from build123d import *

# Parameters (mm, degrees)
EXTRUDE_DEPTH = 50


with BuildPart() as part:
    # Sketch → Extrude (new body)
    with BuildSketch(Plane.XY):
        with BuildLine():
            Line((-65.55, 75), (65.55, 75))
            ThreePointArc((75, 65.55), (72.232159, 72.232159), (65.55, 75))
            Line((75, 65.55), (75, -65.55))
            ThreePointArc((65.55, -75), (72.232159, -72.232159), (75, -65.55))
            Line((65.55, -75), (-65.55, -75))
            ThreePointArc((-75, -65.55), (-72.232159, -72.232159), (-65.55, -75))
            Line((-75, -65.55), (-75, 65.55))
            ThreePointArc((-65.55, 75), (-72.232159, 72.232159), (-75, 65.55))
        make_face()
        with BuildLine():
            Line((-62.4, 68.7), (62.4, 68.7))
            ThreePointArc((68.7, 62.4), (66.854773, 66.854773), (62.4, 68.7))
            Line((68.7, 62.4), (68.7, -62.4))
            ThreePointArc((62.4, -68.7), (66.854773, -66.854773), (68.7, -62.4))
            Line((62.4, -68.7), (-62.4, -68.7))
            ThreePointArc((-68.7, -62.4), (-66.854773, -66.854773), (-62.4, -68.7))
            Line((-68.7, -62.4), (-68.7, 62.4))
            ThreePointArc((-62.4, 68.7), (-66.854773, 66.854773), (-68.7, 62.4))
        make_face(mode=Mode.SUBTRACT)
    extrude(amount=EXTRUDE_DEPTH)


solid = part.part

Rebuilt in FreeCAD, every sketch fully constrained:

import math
import FreeCAD as App
import Part
import Sketcher

doc = App.newDocument("Part")
params = doc.addObject("Spreadsheet::Sheet", "Params")
for row, (alias, value) in enumerate([
    ("sketch1_radius", "6.299999 mm"),
    ("sketch1_radius2", "9.45 mm"),
    ("sketch1_width", "131.1 mm"),
    ("sketch1_width2", "124.8 mm"),
    ("pad1_length", "50 mm"),
], start=1):
    params.set(f"A{row}", alias)
    params.set(f"B{row}", "=" + value)
    params.setAlias(f"B{row}", alias)

body = doc.addObject("PartDesign::Body", "Body")

# Sketch on XY plane
sketch1 = doc.addObject("Sketcher::SketchObject", "Sketch")
body.addObject(sketch1)
sketch1.AttachmentSupport = (doc.XY_Plane, [""])
sketch1.MapMode = "FlatFace"
sketch1.addGeometry([
    Part.LineSegment(App.Vector(66, 75, 0), App.Vector(-66, 75, 0)),  # 0
    Part.ArcOfCircle(Part.Circle(App.Vector(-66, 66, 0), App.Vector(0, 0, 1), 9), math.radians(90), math.radians(180)),  # 1
    Part.LineSegment(App.Vector(-75, 66, 0), App.Vector(-75, -66, 0)),  # 2
    Part.ArcOfCircle(Part.Circle(App.Vector(-66, -66, 0), App.Vector(0, 0, 1), 9), math.radians(-180), math.radians(-90)),  # 3
    Part.LineSegment(App.Vector(-66, -75, 0), App.Vector(66, -75, 0)),  # 4
    Part.ArcOfCircle(Part.Circle(App.Vector(66, -66, 0), App.Vector(0, 0, 1), 9), math.radians(-90), math.radians(0)),  # 5
    Part.LineSegment(App.Vector(75, -66, 0), App.Vector(75, 66, 0)),  # 6
    Part.ArcOfCircle(Part.Circle(App.Vector(66, 66, 0), App.Vector(0, 0, 1), 9), math.radians(0), math.radians(90)),  # 7
    Part.LineSegment(App.Vector(-62, 69, 0), App.Vector(62, 69, 0)),  # 8
    Part.ArcOfCircle(Part.Circle(App.Vector(62, 62, 0), App.Vector(0, 0, 1), 6), math.radians(0), math.radians(90)),  # 9
    Part.LineSegment(App.Vector(69, 62, 0), App.Vector(69, -62, 0)),  # 10
    Part.ArcOfCircle(Part.Circle(App.Vector(62, -62, 0), App.Vector(0, 0, 1), 6), math.radians(-90), math.radians(0)),  # 11
    Part.LineSegment(App.Vector(62, -69, 0), App.Vector(-62, -69, 0)),  # 12
    Part.ArcOfCircle(Part.Circle(App.Vector(-62, -62, 0), App.Vector(0, 0, 1), 6), math.radians(180), math.radians(270)),  # 13
    Part.LineSegment(App.Vector(-69, -62, 0), App.Vector(-69, 62, 0)),  # 14
    Part.ArcOfCircle(Part.Circle(App.Vector(-62, 62, 0), App.Vector(0, 0, 1), 6), math.radians(90), math.radians(180)),  # 15
], False)
sketch1.addConstraint([
    Sketcher.Constraint("Tangent", 0, 2, 1, 1),
    Sketcher.Constraint("Tangent", 1, 2, 2, 1),
    Sketcher.Constraint("Tangent", 2, 2, 3, 1),
    Sketcher.Constraint("Tangent", 3, 2, 4, 1),
    Sketcher.Constraint("Tangent", 4, 2, 5, 1),
    Sketcher.Constraint("Tangent", 5, 2, 6, 1),
    Sketcher.Constraint("Tangent", 6, 2, 7, 1),
    Sketcher.Constraint("Tangent", 7, 2, 0, 1),
    Sketcher.Constraint("Tangent", 8, 2, 9, 2),
    Sketcher.Constraint("Tangent", 9, 1, 10, 1),
    Sketcher.Constraint("Tangent", 10, 2, 11, 2),
    Sketcher.Constraint("Tangent", 11, 1, 12, 1),
    Sketcher.Constraint("Tangent", 12, 2, 13, 2),
    Sketcher.Constraint("Tangent", 13, 1, 14, 1),
    Sketcher.Constraint("Tangent", 14, 2, 15, 2),
    Sketcher.Constraint("Tangent", 15, 1, 8, 1),
    Sketcher.Constraint("Horizontal", 0),
    Sketcher.Constraint("Vertical", 2),
    Sketcher.Constraint("Horizontal", 4),
    Sketcher.Constraint("Vertical", 6),
    Sketcher.Constraint("Horizontal", 8),
    Sketcher.Constraint("Vertical", 10),
    Sketcher.Constraint("Horizontal", 12),
    Sketcher.Constraint("Vertical", 14),
    Sketcher.Constraint("Equal", 1, 3),
    Sketcher.Constraint("Equal", 3, 5),
    Sketcher.Constraint("Equal", 5, 7),
    Sketcher.Constraint("Equal", 9, 11),
    Sketcher.Constraint("Equal", 11, 13),
    Sketcher.Constraint("Equal", 13, 15),
    Sketcher.Constraint("Symmetric", 1, 3, 5, 3, -1, 1),
    Sketcher.Constraint("Symmetric", 9, 3, 13, 3, -1, 1),
    Sketcher.Constraint("Equal", 4, 2),
    Sketcher.Constraint("Equal", 12, 10),
    Sketcher.Constraint("Radius", 9, 6.299999),
    Sketcher.Constraint("Radius", 1, 9.45),
    Sketcher.Constraint("DistanceX", 0, 2, 0, 1, 131.1),
    Sketcher.Constraint("DistanceX", 8, 1, 8, 2, 124.8),
])
sketch1.setExpression("Constraints[34]", "Params.sketch1_radius")
sketch1.setExpression("Constraints[35]", "Params.sketch1_radius2")
sketch1.setExpression("Constraints[36]", "Params.sketch1_width")
sketch1.setExpression("Constraints[37]", "Params.sketch1_width2")
pad1 = doc.addObject("PartDesign::Pad", "Pad")
body.addObject(pad1)
pad1.Profile = sketch1
pad1.setExpression("Length", "Params.pad1_length")

doc.recompute()
